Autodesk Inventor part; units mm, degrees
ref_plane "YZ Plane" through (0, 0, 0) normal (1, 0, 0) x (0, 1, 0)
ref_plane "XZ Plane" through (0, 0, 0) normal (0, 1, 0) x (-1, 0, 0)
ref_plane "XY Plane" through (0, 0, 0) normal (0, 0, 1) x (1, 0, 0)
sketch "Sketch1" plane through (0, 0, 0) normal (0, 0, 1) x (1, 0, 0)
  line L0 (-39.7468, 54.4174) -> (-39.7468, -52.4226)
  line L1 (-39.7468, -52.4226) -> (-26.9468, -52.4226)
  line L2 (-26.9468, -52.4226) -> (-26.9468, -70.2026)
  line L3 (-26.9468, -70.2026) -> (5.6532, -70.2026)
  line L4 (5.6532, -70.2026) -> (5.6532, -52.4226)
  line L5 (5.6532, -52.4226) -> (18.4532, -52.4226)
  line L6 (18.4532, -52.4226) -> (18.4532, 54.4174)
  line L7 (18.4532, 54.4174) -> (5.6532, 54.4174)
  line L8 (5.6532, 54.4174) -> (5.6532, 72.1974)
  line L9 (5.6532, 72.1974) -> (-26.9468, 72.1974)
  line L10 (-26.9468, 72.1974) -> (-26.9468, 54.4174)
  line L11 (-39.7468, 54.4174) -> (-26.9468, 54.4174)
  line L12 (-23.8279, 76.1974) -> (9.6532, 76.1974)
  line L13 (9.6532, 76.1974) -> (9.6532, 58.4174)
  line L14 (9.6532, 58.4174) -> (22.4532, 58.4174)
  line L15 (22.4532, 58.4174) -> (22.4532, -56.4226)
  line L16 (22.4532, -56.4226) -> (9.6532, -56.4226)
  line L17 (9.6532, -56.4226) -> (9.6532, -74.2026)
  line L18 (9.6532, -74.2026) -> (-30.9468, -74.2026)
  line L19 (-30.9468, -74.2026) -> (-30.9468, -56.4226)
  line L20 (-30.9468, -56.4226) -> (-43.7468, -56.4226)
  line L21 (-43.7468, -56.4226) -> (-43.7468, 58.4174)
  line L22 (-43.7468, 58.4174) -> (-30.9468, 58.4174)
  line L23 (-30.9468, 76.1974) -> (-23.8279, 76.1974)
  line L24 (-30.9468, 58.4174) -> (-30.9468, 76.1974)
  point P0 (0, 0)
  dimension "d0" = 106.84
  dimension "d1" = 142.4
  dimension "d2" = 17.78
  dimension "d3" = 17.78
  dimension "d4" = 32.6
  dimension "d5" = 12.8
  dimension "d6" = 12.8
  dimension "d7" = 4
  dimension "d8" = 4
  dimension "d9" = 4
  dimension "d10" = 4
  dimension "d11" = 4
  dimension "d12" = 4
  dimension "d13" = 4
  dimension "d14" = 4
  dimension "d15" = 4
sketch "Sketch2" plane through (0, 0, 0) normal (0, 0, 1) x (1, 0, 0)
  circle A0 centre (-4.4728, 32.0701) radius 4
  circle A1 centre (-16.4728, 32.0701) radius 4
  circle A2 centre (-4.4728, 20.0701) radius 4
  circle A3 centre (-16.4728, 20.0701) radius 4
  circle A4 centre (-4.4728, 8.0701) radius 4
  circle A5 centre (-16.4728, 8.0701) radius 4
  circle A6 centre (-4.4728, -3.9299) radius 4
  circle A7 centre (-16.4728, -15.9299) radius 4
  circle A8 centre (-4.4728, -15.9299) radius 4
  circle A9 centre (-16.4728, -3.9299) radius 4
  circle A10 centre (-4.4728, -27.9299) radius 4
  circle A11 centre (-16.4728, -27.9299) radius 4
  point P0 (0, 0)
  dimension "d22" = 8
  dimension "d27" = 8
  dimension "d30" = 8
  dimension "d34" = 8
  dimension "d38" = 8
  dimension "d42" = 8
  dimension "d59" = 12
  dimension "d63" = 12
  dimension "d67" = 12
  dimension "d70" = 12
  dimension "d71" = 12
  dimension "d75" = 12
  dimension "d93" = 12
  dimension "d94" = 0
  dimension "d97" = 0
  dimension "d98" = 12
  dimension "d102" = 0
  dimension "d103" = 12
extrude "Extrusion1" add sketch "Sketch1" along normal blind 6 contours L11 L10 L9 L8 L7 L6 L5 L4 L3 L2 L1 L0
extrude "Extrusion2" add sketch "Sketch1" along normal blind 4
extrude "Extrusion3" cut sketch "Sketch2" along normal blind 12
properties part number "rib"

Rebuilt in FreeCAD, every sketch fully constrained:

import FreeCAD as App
import Part
import Sketcher

V = App.Vector
Q = App.Units.Quantity


def add_polygon(sketch, points):
    """Adds a closed chain of lines whose ends are joined by coincident constraints."""
    first, n = sketch.GeometryCount, len(points)
    for a, b in zip(points, points[1:] + points[:1]):
        sketch.addGeometry(Part.LineSegment(App.Vector(*a, 0), App.Vector(*b, 0)), False)
    for i in range(n):
        sketch.addConstraint(Sketcher.Constraint("Coincident", first + i, 2, first + (i + 1) % n, 1))

doc = App.newDocument("Part")
body = doc.addObject("PartDesign::Body", "Body")

sketch1 = doc.addObject("Sketcher::SketchObject", "Sketch")
body.addObject(sketch1)
sketch1.AttachmentSupport = (doc.XY_Plane, [""])
sketch1.MapMode = "FlatFace"
add_polygon(sketch1, [(-27, 54), (-40, 54), (-40, -52), (-27, -52), (-27, -70), (6, -70), (6, -52), (18, -52), (18, 54), (6, 54), (6, 72), (-27, 72)])
sketch1.addConstraint([
    Sketcher.Constraint("Horizontal", 0),
    Sketcher.Constraint("Vertical", 1),
    Sketcher.Constraint("Horizontal", 2),
    Sketcher.Constraint("Vertical", 3),
    Sketcher.Constraint("Horizontal", 4),
    Sketcher.Constraint("Vertical", 5),
    Sketcher.Constraint("Horizontal", 6),
    Sketcher.Constraint("Vertical", 7),
    Sketcher.Constraint("Horizontal", 8),
    Sketcher.Constraint("Vertical", 9),
    Sketcher.Constraint("Horizontal", 10),
    Sketcher.Constraint("Vertical", 11),
    Sketcher.Constraint("Horizontal", 2, 2, 5, 2),
    Sketcher.Constraint("Horizontal", 0, 2, 7, 2),
    Sketcher.Constraint("Vertical", 5, 2, 8, 2),
    Sketcher.Constraint("Vertical", 3, 2, 10, 2),
    Sketcher.Constraint("Equal", 2, 6),
    Sketcher.Constraint("Equal", 5, 9),
    Sketcher.Constraint("DistanceX", 0, 2, 0, 1, Q("12.8 mm")),
    Sketcher.Constraint("DistanceX", 4, 1, 4, 2, Q("32.6 mm")),
    Sketcher.Constraint("DistanceY", 1, 2, 1, 1, Q("106.84 mm")),
    Sketcher.Constraint("DistanceY", 3, 2, 3, 1, Q("17.78 mm")),
    Sketcher.Constraint("DistanceX", 0, 2, -1, 1, Q("39.7468 mm")),
    Sketcher.Constraint("DistanceY", -1, 1, 0, 2, Q("54.4174 mm")),
])
pad1 = doc.addObject("PartDesign::Pad", "Pad")
body.addObject(pad1)
pad1.Profile = sketch1
pad1.Length = 6

sketch2 = doc.addObject("Sketcher::SketchObject", "Sketch001")
body.addObject(sketch2)
sketch2.AttachmentSupport = (doc.XY_Plane, [""])
sketch2.MapMode = "FlatFace"
add_polygon(sketch2, [(10, 76), (-31, 76), (-31, 58), (-44, 58), (-44, -56), (-31, -56), (-31, -74), (10, -74), (10, -56), (22, -56), (22, 58), (10, 58)])
add_polygon(sketch2, [(-40, -52), (-40, 54), (-27, 54), (-27, 72), (6, 72), (6, 54), (18, 54), (18, -52), (6, -52), (6, -70), (-27, -70), (-27, -52)])
sketch2.addConstraint([
    Sketcher.Constraint("Horizontal", 0),
    Sketcher.Constraint("Vertical", 1),
    Sketcher.Constraint("Horizontal", 2),
    Sketcher.Constraint("Vertical", 3),
    Sketcher.Constraint("Horizontal", 4),
    Sketcher.Constraint("Vertical", 5),
    Sketcher.Constraint("Horizontal", 6),
    Sketcher.Constraint("Vertical", 7),
    Sketcher.Constraint("Horizontal", 8),
    Sketcher.Constraint("Vertical", 9),
    Sketcher.Constraint("Horizontal", 10),
    Sketcher.Constraint("Vertical", 11),
    Sketcher.Constraint("Vertical", 12),
    Sketcher.Constraint("Horizontal", 13),
    Sketcher.Constraint("Vertical", 14),
    Sketcher.Constraint("Horizontal", 15),
    Sketcher.Constraint("Vertical", 16),
    Sketcher.Constraint("Horizontal", 17),
    Sketcher.Constraint("Vertical", 18),
    Sketcher.Constraint("Horizontal", 19),
    Sketcher.Constraint("Vertical", 20),
    Sketcher.Constraint("Horizontal", 21),
    Sketcher.Constraint("Vertical", 22),
    Sketcher.Constraint("Horizontal", 23),
    Sketcher.Constraint("Horizontal", 4, 2, 7, 2),
    Sketcher.Constraint("Horizontal", 2, 2, 9, 2),
    Sketcher.Constraint("Horizontal", 13, 2, 16, 2),
    Sketcher.Constraint("Horizontal", 19, 2, 22, 2),
    Sketcher.Constraint("Vertical", 1, 2, 4, 2),
    Sketcher.Constraint("Vertical", 7, 2, 10, 2),
    Sketcher.Constraint("Vertical", 16, 2, 19, 2),
    Sketcher.Constraint("Vertical", 14, 2, 21, 2),
    Sketcher.Constraint("Equal", 4, 8),
    Sketcher.Constraint("Equal", 10, 13),
    Sketcher.Constraint("Equal", 13, 17),
    Sketcher.Constraint("Equal", 1, 5),
    Sketcher.Constraint("Equal", 11, 14),
    Sketcher.Constraint("Equal", 16, 20),
    Sketcher.Constraint("DistanceX", 2, 2, 2, 1, Q("12.8 mm")),
    Sketcher.Constraint("DistanceX", 15, 1, 15, 2, Q("32.6 mm")),
    Sketcher.Constraint("DistanceX", 2, 2, 12, 2, Q("4 mm")),
    Sketcher.Constraint("DistanceY", 12, 2, 2, 2, Q("4 mm")),
    Sketcher.Constraint("DistanceX", 15, 2, 11, 2, Q("4 mm")),
    Sketcher.Constraint("DistanceY", 8, 2, 18, 2, Q("4 mm")),
    Sketcher.Constraint("DistanceY", 1, 2, 1, 1, Q("17.78 mm")),
    Sketcher.Constraint("DistanceY", 12, 1, 12, 2, Q("106.84 mm")),
    Sketcher.Constraint("DistanceX", 0, 2, -1, 1, Q("30.9468 mm")),
    Sketcher.Constraint("DistanceY", -1, 1, 0, 2, Q("76.1974 mm")),
])
pad2 = doc.addObject("PartDesign::Pad", "Pad001")
body.addObject(pad2)
pad2.Profile = sketch2
pad2.Length = 4

sketch3 = doc.addObject("Sketcher::SketchObject", "Sketch002")
body.addObject(sketch3)
sketch3.AttachmentSupport = (doc.XY_Plane, [""])
sketch3.MapMode = "FlatFace"
sketch3.addGeometry([
    Part.Circle(V(-4.5, 32.1, 0), V(0, 0, 1), 4),
    Part.Circle(V(-16.5, 32.1, 0), V(0, 0, 1), 4),
    Part.Circle(V(-4.5, 20.1, 0), V(0, 0, 1), 4),
    Part.Circle(V(-16.5, 20.1, 0), V(0, 0, 1), 4),
    Part.Circle(V(-4.5, 8.1, 0), V(0, 0, 1), 4),
    Part.Circle(V(-16.5, 8.1, 0), V(0, 0, 1), 4),
    Part.Circle(V(-4.5, -3.9, 0), V(0, 0, 1), 4),
    Part.Circle(V(-16.5, -15.9, 0), V(0, 0, 1), 4),
    Part.Circle(V(-4.5, -15.9, 0), V(0, 0, 1), 4),
    Part.Circle(V(-16.5, -3.9, 0), V(0, 0, 1), 4),
    Part.Circle(V(-4.5, -27.9, 0), V(0, 0, 1), 4),
    Part.Circle(V(-16.5, -27.9, 0), V(0, 0, 1), 4),
], False)
sketch3.addConstraint([
    Sketcher.Constraint("Equal", 0, 1),
    Sketcher.Constraint("Equal", 1, 2),
    Sketcher.Constraint("Equal", 2, 3),
    Sketcher.Constraint("Equal", 3, 4),
    Sketcher.Constraint("Equal", 4, 5),
    Sketcher.Constraint("Equal", 5, 6),
    Sketcher.Constraint("Equal", 6, 7),
    Sketcher.Constraint("Equal", 7, 8),
    Sketcher.Constraint("Equal", 8, 9),
    Sketcher.Constraint("Equal", 9, 10),
    Sketcher.Constraint("Equal", 10, 11),
    Sketcher.Constraint("Horizontal", 0, 3, 1, 3),
    Sketcher.Constraint("Horizontal", 2, 3, 3, 3),
    Sketcher.Constraint("Horizontal", 4, 3, 5, 3),
    Sketcher.Constraint("Horizontal", 7, 3, 8, 3),
    Sketcher.Constraint("Horizontal", 6, 3, 9, 3),
    Sketcher.Constraint("Horizontal", 10, 3, 11, 3),
    Sketcher.Constraint("Vertical", 0, 3, 2, 3),
    Sketcher.Constraint("Vertical", 1, 3, 3, 3),
    Sketcher.Constraint("Vertical", 2, 3, 4, 3),
    Sketcher.Constraint("Vertical", 3, 3, 5, 3),
    Sketcher.Constraint("Vertical", 4, 3, 6, 3),
    Sketcher.Constraint("Vertical", 5, 3, 7, 3),
    Sketcher.Constraint("Vertical", 6, 3, 8, 3),
    Sketcher.Constraint("Vertical", 7, 3, 9, 3),
    Sketcher.Constraint("Vertical", 8, 3, 10, 3),
    Sketcher.Constraint("Vertical", 9, 3, 11, 3),
    Sketcher.Constraint("Diameter", 0, Q("8 mm")),
    Sketcher.Constraint("DistanceX", 1, 3, 0, 3, Q("12 mm")),
    Sketcher.Constraint("DistanceY", 2, 3, 0, 3, Q("12 mm")),
    Sketcher.Constraint("DistanceY", 4, 3, 2, 3, Q("12 mm")),
    Sketcher.Constraint("DistanceY", 6, 3, 4, 3, Q("12 mm")),
    Sketcher.Constraint("DistanceY", 7, 3, 6, 3, Q("12 mm")),
    Sketcher.Constraint("DistanceY", 10, 3, 8, 3, Q("12 mm")),
    Sketcher.Constraint("DistanceY", -1, 1, 0, 3, Q("32.07 mm")),
    Sketcher.Constraint("DistanceX", 0, 3, -1, 1, Q("4.4728 mm")),
])
pocket1 = doc.addObject("PartDesign::Pocket", "Pocket")
body.addObject(pocket1)
pocket1.Profile = sketch3
pocket1.Length = 12
pocket1.Reversed = True

doc.recompute()
